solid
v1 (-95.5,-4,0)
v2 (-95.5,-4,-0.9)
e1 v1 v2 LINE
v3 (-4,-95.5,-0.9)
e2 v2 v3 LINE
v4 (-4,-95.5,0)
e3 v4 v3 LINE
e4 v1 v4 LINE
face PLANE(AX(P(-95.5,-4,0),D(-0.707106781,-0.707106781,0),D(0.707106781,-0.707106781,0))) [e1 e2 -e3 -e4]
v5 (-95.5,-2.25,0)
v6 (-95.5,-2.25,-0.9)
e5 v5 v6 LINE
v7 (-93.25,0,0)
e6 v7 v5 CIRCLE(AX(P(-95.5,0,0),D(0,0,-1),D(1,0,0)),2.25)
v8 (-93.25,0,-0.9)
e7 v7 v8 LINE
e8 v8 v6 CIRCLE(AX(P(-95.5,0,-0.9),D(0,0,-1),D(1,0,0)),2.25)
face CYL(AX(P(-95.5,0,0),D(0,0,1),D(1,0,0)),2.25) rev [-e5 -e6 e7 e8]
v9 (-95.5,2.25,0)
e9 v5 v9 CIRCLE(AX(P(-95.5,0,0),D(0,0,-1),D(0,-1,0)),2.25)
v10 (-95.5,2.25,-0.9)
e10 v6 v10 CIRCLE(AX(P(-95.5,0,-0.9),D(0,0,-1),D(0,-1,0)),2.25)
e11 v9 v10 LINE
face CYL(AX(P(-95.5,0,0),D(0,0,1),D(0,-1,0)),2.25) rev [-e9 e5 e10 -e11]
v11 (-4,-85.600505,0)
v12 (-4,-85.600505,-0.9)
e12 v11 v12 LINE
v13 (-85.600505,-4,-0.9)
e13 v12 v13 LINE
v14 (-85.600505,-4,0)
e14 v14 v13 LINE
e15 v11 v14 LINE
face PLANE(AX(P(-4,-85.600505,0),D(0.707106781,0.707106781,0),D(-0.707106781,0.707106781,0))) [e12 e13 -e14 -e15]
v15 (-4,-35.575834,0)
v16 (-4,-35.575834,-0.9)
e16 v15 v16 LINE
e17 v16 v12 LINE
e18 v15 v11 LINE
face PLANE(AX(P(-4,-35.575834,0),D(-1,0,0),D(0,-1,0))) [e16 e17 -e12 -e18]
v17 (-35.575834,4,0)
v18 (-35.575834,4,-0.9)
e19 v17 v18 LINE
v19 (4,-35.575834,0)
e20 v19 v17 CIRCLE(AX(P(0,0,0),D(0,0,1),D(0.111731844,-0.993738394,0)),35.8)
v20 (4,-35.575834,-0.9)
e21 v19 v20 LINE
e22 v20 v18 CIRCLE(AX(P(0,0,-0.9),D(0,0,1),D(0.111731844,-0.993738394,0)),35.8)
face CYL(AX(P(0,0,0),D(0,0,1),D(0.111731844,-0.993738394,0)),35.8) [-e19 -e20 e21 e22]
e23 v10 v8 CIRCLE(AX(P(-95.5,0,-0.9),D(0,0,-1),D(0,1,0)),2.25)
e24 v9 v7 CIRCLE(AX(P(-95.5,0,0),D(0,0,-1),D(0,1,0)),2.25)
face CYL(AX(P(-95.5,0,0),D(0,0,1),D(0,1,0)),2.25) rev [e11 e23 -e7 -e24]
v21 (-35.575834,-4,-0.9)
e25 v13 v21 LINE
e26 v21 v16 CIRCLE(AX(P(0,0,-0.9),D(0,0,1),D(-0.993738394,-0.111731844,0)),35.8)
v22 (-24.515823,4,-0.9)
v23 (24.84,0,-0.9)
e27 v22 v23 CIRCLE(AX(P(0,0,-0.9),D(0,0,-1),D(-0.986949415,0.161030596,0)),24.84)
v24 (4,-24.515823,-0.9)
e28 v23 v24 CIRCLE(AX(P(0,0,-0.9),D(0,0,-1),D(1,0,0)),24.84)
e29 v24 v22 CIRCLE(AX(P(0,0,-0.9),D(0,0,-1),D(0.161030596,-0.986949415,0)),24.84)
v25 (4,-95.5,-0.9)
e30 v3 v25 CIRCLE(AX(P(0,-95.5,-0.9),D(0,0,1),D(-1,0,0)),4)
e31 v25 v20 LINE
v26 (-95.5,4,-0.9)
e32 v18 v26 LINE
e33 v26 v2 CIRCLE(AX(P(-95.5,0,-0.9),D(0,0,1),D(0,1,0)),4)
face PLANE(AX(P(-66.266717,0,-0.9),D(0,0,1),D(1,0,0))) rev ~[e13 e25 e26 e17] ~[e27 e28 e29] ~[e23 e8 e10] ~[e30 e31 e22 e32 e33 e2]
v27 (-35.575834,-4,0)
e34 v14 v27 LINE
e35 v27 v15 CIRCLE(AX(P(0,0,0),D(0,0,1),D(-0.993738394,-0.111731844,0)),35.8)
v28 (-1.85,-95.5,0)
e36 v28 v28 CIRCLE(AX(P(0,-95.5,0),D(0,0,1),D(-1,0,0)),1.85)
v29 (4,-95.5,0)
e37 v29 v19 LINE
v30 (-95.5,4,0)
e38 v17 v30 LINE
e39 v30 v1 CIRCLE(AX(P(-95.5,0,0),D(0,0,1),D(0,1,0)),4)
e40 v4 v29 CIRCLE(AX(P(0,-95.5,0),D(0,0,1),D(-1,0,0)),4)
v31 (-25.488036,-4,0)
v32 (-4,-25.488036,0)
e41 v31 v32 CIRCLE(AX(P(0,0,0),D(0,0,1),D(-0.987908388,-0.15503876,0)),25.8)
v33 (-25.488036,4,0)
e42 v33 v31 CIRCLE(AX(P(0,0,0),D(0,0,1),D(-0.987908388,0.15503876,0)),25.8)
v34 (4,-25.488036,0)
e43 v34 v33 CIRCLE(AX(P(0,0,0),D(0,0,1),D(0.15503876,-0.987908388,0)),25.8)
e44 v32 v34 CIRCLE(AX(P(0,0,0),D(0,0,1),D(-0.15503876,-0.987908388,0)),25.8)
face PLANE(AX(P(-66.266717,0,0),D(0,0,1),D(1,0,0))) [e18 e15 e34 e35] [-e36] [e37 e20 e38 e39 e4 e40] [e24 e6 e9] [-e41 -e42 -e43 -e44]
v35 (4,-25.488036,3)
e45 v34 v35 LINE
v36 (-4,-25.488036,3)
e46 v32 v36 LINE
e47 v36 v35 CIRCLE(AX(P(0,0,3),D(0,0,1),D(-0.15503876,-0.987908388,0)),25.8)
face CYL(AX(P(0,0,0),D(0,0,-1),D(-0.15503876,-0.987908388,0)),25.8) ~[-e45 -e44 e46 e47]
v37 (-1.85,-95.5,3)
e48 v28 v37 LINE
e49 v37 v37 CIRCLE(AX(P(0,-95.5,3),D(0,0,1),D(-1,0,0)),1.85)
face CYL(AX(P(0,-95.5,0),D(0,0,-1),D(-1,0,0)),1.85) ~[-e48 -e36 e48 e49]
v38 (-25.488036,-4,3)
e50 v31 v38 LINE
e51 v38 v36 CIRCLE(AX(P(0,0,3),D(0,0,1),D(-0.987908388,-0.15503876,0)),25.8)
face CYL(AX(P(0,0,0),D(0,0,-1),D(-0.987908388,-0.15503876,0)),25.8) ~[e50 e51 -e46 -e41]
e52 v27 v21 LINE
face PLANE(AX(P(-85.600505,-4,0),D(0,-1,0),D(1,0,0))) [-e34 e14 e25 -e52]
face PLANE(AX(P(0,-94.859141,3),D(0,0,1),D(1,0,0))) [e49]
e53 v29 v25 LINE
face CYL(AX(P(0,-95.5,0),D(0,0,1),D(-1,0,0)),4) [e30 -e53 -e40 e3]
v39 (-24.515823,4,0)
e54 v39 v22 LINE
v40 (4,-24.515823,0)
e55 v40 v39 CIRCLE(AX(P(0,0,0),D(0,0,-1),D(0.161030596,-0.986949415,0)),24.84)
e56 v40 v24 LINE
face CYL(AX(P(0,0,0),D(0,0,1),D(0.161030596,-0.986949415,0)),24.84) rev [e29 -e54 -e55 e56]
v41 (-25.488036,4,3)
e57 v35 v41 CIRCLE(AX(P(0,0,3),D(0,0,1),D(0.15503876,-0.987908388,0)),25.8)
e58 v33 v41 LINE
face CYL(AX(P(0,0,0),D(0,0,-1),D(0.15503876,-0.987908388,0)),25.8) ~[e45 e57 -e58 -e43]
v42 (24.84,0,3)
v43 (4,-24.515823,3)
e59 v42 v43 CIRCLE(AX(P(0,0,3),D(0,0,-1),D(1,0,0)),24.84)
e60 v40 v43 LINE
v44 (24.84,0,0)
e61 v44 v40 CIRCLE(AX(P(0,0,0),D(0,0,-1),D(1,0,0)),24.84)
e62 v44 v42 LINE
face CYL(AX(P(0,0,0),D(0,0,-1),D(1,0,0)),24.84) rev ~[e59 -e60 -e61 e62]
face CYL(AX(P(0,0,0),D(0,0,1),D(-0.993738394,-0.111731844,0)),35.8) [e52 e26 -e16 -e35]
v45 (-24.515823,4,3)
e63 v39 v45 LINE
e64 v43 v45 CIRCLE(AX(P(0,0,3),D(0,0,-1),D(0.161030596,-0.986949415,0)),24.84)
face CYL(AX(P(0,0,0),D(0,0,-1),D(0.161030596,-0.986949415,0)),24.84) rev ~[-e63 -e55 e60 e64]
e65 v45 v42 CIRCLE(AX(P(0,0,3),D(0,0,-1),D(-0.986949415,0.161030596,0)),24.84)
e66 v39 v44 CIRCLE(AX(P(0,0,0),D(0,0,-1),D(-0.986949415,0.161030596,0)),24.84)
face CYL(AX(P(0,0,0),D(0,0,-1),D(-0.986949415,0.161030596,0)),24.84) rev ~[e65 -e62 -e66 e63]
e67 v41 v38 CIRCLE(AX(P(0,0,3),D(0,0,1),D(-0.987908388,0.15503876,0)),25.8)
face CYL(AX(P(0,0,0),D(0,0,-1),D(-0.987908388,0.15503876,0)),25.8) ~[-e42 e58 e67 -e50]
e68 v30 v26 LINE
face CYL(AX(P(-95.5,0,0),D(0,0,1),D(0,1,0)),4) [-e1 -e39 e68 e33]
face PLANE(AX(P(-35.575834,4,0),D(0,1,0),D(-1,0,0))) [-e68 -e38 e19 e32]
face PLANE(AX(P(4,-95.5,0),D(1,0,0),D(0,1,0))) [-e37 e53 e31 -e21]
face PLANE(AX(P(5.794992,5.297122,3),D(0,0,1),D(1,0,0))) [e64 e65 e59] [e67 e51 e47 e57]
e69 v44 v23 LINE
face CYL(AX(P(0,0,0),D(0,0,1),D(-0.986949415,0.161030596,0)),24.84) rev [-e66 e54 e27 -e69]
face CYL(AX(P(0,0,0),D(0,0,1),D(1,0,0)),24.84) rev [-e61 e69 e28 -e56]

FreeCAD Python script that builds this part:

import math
import FreeCAD as App
import Part
import Sketcher
Q = App.Units.Quantity

doc = App.newDocument("Part")
params = doc.addObject("Spreadsheet::Sheet", "Params")
for row, (alias, value) in enumerate([
    ("sketch1_radius", "4 mm"),
    ("sketch1_radius2", "35.8 mm"),
    ("sketch1_radius3", "2.25 mm"),
    ("sketch1_radius4", "24.84 mm"),
    ("pad1_length", "0.9 mm"),
    ("sketch2_radius", "25.8 mm"),
    ("sketch2_radius2", "24.84 mm"),
    ("pad2_length", "3 mm"),
    ("sketch3_diameter", "3.7 mm"),
    ("pad3_length", "3 mm"),
], start=1):
    params.set(f"A{row}", alias)
    params.set(f"B{row}", "=" + value)
    params.setAlias(f"B{row}", alias)

body = doc.addObject("PartDesign::Body", "Body")

sketch1 = body.newObject("Sketcher::SketchObject", "Sketch")
sketch1.AttachmentSupport = (doc.getObject("XY_Plane"), [""])
sketch1.MapMode = "FlatFace"
sketch1.addGeometry([
    Part.LineSegment(App.Vector(4, -95.5, 0), App.Vector(4, -35.575834, 0)),
    Part.ArcOfCircle(Part.Circle(App.Vector(0, 0, 0), App.Vector(0, 0, 1), 35.8), math.radians(-83.584842), math.radians(173.584842)),
    Part.LineSegment(App.Vector(-35.575834, 4, 0), App.Vector(-95.5, 4, 0)),
    Part.ArcOfCircle(Part.Circle(App.Vector(-95.5, 0, 0), App.Vector(0, 0, 1), 4), math.radians(90), math.radians(270)),
    Part.LineSegment(App.Vector(-95.5, -4, 0), App.Vector(-4, -95.5, 0)),
    Part.ArcOfCircle(Part.Circle(App.Vector(0, -95.5, 0), App.Vector(0, 0, 1), 4), math.radians(180), math.radians(360)),
    Part.ArcOfCircle(Part.Circle(App.Vector(0, 0, 0), App.Vector(0, 0, 1), 35.8), math.radians(-173.584842), math.radians(-96.415158)),
    Part.LineSegment(App.Vector(-4, -35.575834, 0), App.Vector(-4, -85.600505, 0)),
    Part.LineSegment(App.Vector(-4, -85.600505, 0), App.Vector(-85.600505, -4, 0)),
    Part.LineSegment(App.Vector(-85.600505, -4, 0), App.Vector(-35.575834, -4, 0)),
    Part.ArcOfCircle(Part.Circle(App.Vector(-95.5, 0, 0), App.Vector(0, 0, 1), 2.25), math.radians(0), math.radians(90)),
    Part.ArcOfCircle(Part.Circle(App.Vector(-95.5, 0, 0), App.Vector(0, 0, 1), 2.25), math.radians(-90), math.radians(0)),
    Part.ArcOfCircle(Part.Circle(App.Vector(-95.5, 0, 0), App.Vector(0, 0, 1), 2.25), math.radians(90), math.radians(270)),
    Part.ArcOfCircle(Part.Circle(App.Vector(0, 0, 0), App.Vector(0, 0, 1), 24.84), math.radians(0), math.radians(170.733279)),
    Part.ArcOfCircle(Part.Circle(App.Vector(0, 0, 0), App.Vector(0, 0, 1), 24.84), math.radians(-80.733279), math.radians(0)),
    Part.ArcOfCircle(Part.Circle(App.Vector(0, 0, 0), App.Vector(0, 0, 1), 24.84), math.radians(170.733279), math.radians(279.266721)),
], False)
sketch1.addConstraint([
    Sketcher.Constraint("Coincident", 0, 2, 1, 1),
    Sketcher.Constraint("Coincident", 1, 2, 2, 1),
    Sketcher.Constraint("Tangent", 2, 2, 3, 1),
    Sketcher.Constraint("Coincident", 3, 2, 4, 1),
    Sketcher.Constraint("Coincident", 4, 2, 5, 1),
    Sketcher.Constraint("Tangent", 5, 2, 0, 1),
    Sketcher.Constraint("Coincident", 6, 2, 7, 1),
    Sketcher.Constraint("Coincident", 7, 2, 8, 1),
    Sketcher.Constraint("Coincident", 8, 2, 9, 1),
    Sketcher.Constraint("Coincident", 9, 2, 6, 1),
    Sketcher.Constraint("Tangent", 10, 1, 11, 2),
    Sketcher.Constraint("Tangent", 11, 1, 12, 2),
    Sketcher.Constraint("Tangent", 12, 1, 10, 2),
    Sketcher.Constraint("Tangent", 13, 1, 14, 2),
    Sketcher.Constraint("Tangent", 14, 1, 15, 2),
    Sketcher.Constraint("Tangent", 15, 1, 13, 2),
    Sketcher.Constraint("Vertical", 0),
    Sketcher.Constraint("Horizontal", 2),
    Sketcher.Constraint("Vertical", 7),
    Sketcher.Constraint("Horizontal", 9),
    Sketcher.Constraint("Coincident", 1, 3, -1, 1),
    Sketcher.Constraint("Coincident", 6, 3, -1, 1),
    Sketcher.Constraint("Coincident", 13, 3, -1, 1),
    Sketcher.Constraint("Coincident", 10, 3, 3, 3),
    Sketcher.Constraint("Equal", 3, 5),
    Sketcher.Constraint("Equal", 1, 6),
    Sketcher.Constraint("Symmetric", 4, 2, 5, 2, -2),
    Sketcher.Constraint("Symmetric", 2, 2, 3, 2, -1),
    Sketcher.Constraint("PointOnObject", 10, 1, -1),
    Sketcher.Constraint("PointOnObject", 13, 1, -1),
    Sketcher.Constraint("Parallel", 4, 8),
    Sketcher.Constraint("Horizontal", 0, 2, 6, 2),
    Sketcher.Constraint("Horizontal", 3, 2, 8, 2),
    Sketcher.Constraint("Horizontal", 2, 2, 15, 1),
    Sketcher.Constraint("Vertical", 3, 2, 11, 1),
    Sketcher.Constraint("Vertical", 11, 1, 12, 1),
    Sketcher.Constraint("Vertical", 5, 2, 14, 1),
    Sketcher.Constraint("Equal", 2, 0),
    Sketcher.Constraint("Radius", 3, Q("4 mm")),
    Sketcher.Constraint("Radius", 1, Q("35.8 mm")),
    Sketcher.Constraint("Radius", 10, Q("2.25 mm")),
    Sketcher.Constraint("Radius", 13, Q("24.84 mm")),
    Sketcher.Constraint("DistanceX", 3, 3, -1, 1, Q("95.5 mm")),
    Sketcher.Constraint("DistanceX", 9, 1, 9, 2, Q("50.024671 mm")),
])
sketch1.setExpression("Constraints[38]", "Params.sketch1_radius")
sketch1.setExpression("Constraints[39]", "Params.sketch1_radius2")
sketch1.setExpression("Constraints[40]", "Params.sketch1_radius3")
sketch1.setExpression("Constraints[41]", "Params.sketch1_radius4")
pad1 = body.newObject("PartDesign::Pad", "Pad")
pad1.Profile = sketch1
pad1.setExpression("Length", "Params.pad1_length")
pad1.Reversed = True

sketch2 = body.newObject("Sketcher::SketchObject", "Sketch001")
sketch2.AttachmentSupport = (doc.getObject("XY_Plane"), [""])
sketch2.MapMode = "FlatFace"
sketch2.addGeometry([
    Part.ArcOfCircle(Part.Circle(App.Vector(0, 0, 0), App.Vector(0, 0, 1), 25.8), math.radians(-81.080956), math.radians(171.080956)),
    Part.ArcOfCircle(Part.Circle(App.Vector(0, 0, 0), App.Vector(0, 0, 1), 25.8), math.radians(171.080956), math.radians(188.919044)),
    Part.ArcOfCircle(Part.Circle(App.Vector(0, 0, 0), App.Vector(0, 0, 1), 25.8), math.radians(-171.080956), math.radians(-98.919044)),
    Part.ArcOfCircle(Part.Circle(App.Vector(0, 0, 0), App.Vector(0, 0, 1), 25.8), math.radians(-98.919044), math.radians(-81.080956)),
    Part.ArcOfCircle(Part.Circle(App.Vector(0, 0, 0), App.Vector(0, 0, 1), 24.84), math.radians(0), math.radians(170.733279)),
    Part.ArcOfCircle(Part.Circle(App.Vector(0, 0, 0), App.Vector(0, 0, 1), 24.84), math.radians(-80.733279), math.radians(0)),
    Part.ArcOfCircle(Part.Circle(App.Vector(0, 0, 0), App.Vector(0, 0, 1), 24.84), math.radians(170.733279), math.radians(279.266721)),
], False)
sketch2.addConstraint([
    Sketcher.Constraint("Tangent", 0, 2, 1, 1),
    Sketcher.Constraint("Tangent", 1, 2, 2, 1),
    Sketcher.Constraint("Tangent", 2, 2, 3, 1),
    Sketcher.Constraint("Tangent", 3, 2, 0, 1),
    Sketcher.Constraint("Tangent", 4, 1, 5, 2),
    Sketcher.Constraint("Tangent", 5, 1, 6, 2),
    Sketcher.Constraint("Tangent", 6, 1, 4, 2),
    Sketcher.Constraint("Coincident", 0, 3, -1, 1),
    Sketcher.Constraint("Coincident", 4, 3, -1, 1),
    Sketcher.Constraint("Equal", 0, 1),
    Sketcher.Constraint("PointOnObject", 4, 1, -1),
    Sketcher.Constraint("Horizontal", 2, 2, 3, 2),
    Sketcher.Constraint("Horizontal", 0, 2, 6, 1),
    Sketcher.Constraint("Vertical", 0, 2, 1, 2),
    Sketcher.Constraint("Vertical", 3, 2, 5, 1),
    Sketcher.Constraint("Radius", 0, Q("25.8 mm")),
    Sketcher.Constraint("Radius", 4, Q("24.84 mm")),
    Sketcher.Constraint("DistanceY", -1, 1, 0, 2, Q("4 mm")),
    Sketcher.Constraint("DistanceX", 2, 2, -1, 1, Q("4 mm")),
])
sketch2.setExpression("Constraints[15]", "Params.sketch2_radius")
sketch2.setExpression("Constraints[16]", "Params.sketch2_radius2")
pad2 = body.newObject("PartDesign::Pad", "Pad001")
pad2.Profile = sketch2
pad2.setExpression("Length", "Params.pad2_length")

sketch3 = body.newObject("Sketcher::SketchObject", "Sketch002")
sketch3.AttachmentSupport = (doc.getObject("XY_Plane"), [""])
sketch3.MapMode = "FlatFace"
sketch3.addGeometry(Part.Circle(App.Vector(0, -95.5, 0), App.Vector(0, 0, 1), 1.85), False)
sketch3.addConstraint([
    Sketcher.Constraint("PointOnObject", 0, 3, -2),
    Sketcher.Constraint("Diameter", 0, Q("3.7 mm")),
    Sketcher.Constraint("DistanceY", 0, 3, -1, 1, Q("95.5 mm")),
])
sketch3.setExpression("Constraints[1]", "Params.sketch3_diameter")
pad3 = body.newObject("PartDesign::Pad", "Pad002")
pad3.Profile = sketch3
pad3.setExpression("Length", "Params.pad3_length")

doc.recompute()
